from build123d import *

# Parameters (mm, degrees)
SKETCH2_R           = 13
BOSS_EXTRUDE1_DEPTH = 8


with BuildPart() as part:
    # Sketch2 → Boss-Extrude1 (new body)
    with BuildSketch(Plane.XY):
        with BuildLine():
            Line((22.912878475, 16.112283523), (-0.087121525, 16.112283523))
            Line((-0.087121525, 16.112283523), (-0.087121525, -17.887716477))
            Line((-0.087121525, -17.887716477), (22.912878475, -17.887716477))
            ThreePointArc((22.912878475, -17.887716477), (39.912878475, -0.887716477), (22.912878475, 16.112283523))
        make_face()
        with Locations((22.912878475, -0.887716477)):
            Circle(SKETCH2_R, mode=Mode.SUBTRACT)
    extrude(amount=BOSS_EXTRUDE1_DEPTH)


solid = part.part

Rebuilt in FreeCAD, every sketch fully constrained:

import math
import FreeCAD as App
import Part
import Sketcher

doc = App.newDocument("Part")
body = doc.addObject("PartDesign::Body", "Body")

sketch1 = body.newObject("Sketcher::SketchObject", "Sketch")
sketch1.AttachmentSupport = (doc.getObject("XY_Plane"), [""])
sketch1.MapMode = "FlatFace"
sketch1.addGeometry([
    Part.LineSegment(App.Vector(23, 16, 0), App.Vector(0, 16, 0)),
    Part.LineSegment(App.Vector(0, 16, 0), App.Vector(0, -18, 0)),
    Part.LineSegment(App.Vector(0, -18, 0), App.Vector(23, -18, 0)),
    Part.ArcOfCircle(Part.Circle(App.Vector(23, -1, 0), App.Vector(0, 0, 1), 17), math.radians(-90), math.radians(90)),
    Part.Circle(App.Vector(23, -1, 0), App.Vector(0, 0, 1), 13),
], False)
sketch1.addConstraint([
    Sketcher.Constraint("Coincident", 0, 2, 1, 1),
    Sketcher.Constraint("Coincident", 1, 2, 2, 1),
    Sketcher.Constraint("Tangent", 2, 2, 3, 1),
    Sketcher.Constraint("Tangent", 3, 2, 0, 1),
    Sketcher.Constraint("Horizontal", 0),
    Sketcher.Constraint("Vertical", 1),
    Sketcher.Constraint("Horizontal", 2),
    Sketcher.Constraint("Coincident", 4, 3, 3, 3),
    Sketcher.Constraint("Diameter", 4, 26.0),
    Sketcher.Constraint("Radius", 3, 17.0),
    Sketcher.Constraint("DistanceX", 0, 2, 0, 1, 23.0),
    Sketcher.Constraint("DistanceX", -1, 1, 3, 3, 22.912878),
    Sketcher.Constraint("DistanceY", 3, 3, -1, 1, 0.887716),
])
pad1 = body.newObject("PartDesign::Pad", "Pad")
pad1.Profile = sketch1
pad1.Length = 8

doc.recompute()
